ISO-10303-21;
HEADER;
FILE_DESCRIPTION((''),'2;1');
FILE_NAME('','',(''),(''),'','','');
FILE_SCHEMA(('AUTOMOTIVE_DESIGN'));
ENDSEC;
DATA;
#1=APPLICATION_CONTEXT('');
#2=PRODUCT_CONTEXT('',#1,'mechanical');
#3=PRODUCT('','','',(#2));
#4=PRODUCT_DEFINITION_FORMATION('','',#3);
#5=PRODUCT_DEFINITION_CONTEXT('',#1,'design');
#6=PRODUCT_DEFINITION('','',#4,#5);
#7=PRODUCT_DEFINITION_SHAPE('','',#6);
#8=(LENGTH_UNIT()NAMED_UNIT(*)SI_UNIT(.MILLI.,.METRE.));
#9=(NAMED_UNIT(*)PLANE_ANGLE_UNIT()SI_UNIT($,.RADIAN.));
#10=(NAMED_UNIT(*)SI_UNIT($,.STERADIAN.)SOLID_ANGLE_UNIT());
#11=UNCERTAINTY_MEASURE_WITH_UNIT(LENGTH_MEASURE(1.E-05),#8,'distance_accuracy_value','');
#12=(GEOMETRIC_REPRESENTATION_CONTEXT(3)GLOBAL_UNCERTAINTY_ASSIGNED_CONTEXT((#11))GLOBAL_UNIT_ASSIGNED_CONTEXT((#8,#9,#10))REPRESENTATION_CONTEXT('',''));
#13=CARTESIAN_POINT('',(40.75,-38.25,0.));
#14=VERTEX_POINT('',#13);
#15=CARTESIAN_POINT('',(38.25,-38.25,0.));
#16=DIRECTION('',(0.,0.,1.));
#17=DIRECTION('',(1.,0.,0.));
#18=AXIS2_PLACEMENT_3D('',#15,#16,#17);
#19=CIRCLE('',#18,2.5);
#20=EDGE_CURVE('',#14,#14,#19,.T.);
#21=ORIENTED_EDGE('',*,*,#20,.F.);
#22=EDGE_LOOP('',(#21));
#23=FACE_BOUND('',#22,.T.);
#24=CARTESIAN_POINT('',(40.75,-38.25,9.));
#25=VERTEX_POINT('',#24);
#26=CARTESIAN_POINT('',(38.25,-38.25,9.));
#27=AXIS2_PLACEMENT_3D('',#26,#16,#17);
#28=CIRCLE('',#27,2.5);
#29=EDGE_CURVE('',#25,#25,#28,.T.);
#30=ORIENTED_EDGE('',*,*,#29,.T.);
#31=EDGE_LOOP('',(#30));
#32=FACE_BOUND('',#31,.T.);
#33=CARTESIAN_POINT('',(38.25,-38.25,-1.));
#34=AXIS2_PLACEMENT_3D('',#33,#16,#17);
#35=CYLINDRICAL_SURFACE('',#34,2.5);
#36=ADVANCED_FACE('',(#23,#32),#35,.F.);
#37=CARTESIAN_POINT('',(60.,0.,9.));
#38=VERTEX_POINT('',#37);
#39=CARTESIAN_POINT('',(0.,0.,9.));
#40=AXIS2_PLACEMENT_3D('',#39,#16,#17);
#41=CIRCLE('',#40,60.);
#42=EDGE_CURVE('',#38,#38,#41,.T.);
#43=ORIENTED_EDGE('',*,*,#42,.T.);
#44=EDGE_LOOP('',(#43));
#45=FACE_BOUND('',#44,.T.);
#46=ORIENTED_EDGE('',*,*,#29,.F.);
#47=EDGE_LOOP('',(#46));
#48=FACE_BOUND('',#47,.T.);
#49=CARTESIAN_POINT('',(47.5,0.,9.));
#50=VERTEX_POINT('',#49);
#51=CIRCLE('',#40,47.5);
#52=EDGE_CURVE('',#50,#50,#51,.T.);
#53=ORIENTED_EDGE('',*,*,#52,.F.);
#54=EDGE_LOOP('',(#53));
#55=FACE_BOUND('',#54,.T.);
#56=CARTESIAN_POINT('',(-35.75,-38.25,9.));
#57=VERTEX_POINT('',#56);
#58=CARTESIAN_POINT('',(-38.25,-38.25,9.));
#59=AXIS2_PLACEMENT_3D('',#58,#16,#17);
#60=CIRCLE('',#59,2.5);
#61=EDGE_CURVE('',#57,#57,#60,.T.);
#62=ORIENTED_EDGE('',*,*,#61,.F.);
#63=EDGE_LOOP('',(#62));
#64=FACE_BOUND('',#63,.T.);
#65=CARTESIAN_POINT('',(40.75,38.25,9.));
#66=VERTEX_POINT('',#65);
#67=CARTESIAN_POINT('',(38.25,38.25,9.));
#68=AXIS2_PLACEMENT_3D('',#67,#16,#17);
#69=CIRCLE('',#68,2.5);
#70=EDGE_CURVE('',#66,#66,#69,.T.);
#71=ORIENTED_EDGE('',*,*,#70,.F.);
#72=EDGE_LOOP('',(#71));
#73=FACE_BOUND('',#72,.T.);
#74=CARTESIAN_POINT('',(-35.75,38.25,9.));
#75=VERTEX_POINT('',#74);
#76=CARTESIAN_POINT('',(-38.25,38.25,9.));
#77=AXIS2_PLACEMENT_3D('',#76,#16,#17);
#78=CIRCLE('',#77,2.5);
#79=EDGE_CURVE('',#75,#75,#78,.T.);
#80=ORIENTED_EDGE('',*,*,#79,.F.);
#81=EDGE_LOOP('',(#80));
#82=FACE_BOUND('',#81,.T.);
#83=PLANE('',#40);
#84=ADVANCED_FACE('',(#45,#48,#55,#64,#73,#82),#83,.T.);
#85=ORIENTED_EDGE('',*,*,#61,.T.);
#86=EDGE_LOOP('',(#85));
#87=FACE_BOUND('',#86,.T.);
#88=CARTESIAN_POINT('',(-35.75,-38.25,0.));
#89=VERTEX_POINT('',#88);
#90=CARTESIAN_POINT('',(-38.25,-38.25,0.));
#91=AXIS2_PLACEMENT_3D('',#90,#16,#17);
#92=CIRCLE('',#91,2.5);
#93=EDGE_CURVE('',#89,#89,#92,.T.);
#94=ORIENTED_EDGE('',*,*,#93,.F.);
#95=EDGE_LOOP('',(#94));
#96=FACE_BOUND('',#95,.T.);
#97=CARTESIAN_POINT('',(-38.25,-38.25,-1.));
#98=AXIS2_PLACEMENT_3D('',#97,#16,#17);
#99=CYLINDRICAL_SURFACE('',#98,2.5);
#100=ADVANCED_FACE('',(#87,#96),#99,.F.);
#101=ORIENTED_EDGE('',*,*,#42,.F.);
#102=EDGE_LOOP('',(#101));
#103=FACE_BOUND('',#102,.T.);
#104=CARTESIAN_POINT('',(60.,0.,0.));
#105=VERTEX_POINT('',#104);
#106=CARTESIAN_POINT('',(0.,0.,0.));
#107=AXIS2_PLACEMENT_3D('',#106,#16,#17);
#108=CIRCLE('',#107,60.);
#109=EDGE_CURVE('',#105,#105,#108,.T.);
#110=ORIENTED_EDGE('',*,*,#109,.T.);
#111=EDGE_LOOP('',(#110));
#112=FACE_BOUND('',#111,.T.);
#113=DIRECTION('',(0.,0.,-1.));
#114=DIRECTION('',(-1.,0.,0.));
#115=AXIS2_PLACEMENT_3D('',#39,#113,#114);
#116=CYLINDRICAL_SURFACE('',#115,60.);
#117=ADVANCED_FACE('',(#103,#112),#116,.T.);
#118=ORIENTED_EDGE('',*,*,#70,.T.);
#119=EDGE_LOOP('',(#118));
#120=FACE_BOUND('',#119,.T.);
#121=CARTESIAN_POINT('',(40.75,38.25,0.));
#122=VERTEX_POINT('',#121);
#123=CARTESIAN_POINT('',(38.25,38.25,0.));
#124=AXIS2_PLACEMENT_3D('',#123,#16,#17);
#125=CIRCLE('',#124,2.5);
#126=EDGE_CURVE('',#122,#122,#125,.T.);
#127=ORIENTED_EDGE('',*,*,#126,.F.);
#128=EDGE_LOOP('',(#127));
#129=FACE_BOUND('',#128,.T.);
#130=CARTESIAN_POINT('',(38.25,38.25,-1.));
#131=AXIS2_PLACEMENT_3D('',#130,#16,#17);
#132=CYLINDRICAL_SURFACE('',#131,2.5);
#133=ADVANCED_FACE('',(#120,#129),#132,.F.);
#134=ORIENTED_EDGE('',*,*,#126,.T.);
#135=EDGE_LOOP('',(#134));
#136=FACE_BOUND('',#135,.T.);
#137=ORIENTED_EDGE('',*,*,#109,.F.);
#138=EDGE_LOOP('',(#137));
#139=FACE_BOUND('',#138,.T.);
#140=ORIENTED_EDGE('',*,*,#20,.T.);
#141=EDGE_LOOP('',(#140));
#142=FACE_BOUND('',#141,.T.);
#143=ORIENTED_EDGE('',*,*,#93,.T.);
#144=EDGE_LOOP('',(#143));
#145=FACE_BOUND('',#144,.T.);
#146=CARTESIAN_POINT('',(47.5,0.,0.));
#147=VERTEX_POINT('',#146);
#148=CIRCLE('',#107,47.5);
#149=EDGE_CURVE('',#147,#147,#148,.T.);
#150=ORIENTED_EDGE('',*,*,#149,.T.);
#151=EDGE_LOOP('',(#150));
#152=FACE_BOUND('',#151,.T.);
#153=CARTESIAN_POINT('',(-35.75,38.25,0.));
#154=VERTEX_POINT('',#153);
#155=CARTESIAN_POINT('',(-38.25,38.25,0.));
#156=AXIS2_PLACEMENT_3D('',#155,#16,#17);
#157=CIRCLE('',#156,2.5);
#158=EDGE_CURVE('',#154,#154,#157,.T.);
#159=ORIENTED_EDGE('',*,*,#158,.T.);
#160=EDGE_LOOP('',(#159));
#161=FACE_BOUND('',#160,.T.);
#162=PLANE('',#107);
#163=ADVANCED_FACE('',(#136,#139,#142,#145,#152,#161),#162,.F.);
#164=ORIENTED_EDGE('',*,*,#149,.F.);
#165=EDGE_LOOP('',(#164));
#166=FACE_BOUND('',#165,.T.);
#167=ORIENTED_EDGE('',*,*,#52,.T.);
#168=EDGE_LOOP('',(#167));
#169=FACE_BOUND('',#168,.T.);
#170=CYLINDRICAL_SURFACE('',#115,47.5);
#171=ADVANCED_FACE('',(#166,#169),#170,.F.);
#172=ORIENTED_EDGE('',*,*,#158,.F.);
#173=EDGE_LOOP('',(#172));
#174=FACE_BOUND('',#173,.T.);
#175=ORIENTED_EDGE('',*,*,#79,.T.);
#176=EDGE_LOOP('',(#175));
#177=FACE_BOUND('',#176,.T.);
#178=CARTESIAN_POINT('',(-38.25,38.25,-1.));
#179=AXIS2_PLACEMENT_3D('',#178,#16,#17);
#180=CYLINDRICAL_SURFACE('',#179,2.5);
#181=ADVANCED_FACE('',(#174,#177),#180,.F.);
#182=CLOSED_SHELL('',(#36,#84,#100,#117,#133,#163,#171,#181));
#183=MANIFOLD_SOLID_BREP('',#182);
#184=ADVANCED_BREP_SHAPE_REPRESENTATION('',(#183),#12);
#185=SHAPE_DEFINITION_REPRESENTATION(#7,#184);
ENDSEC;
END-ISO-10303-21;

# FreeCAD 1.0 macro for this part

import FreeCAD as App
import Part
import Sketcher
from FreeCAD import Vector

doc = App.newDocument("Part")
body = doc.addObject("PartDesign::Body", "Body")

# Sketch on XY plane
sketch1 = body.newObject("Sketcher::SketchObject", "Sketch")
sketch1.AttachmentSupport = (doc.getObject("XY_Plane"), [""])
sketch1.MapMode = "FlatFace"
sketch1.addGeometry(Part.Circle(Vector(0, 0, 0), Vector(0, 0, 1), 60), False)
sketch1.addGeometry(Part.Circle(Vector(0, 0, 0), Vector(0, 0, 1), 48), False)
sketch1.addConstraint(Sketcher.Constraint("Coincident", 0, 3, -1, 1))
sketch1.addConstraint(Sketcher.Constraint("Coincident", 1, 3, -1, 1))
sketch1.addConstraint(Sketcher.Constraint("Diameter", 0, 120.0))
sketch1.addConstraint(Sketcher.Constraint("Diameter", 1, 95.0))
pad1 = body.newObject("PartDesign::Pad", "Pad")
pad1.Profile = sketch1
pad1.Length = 9

# Sketch on XY plane
sketch2 = body.newObject("Sketcher::SketchObject", "Sketch001")
sketch2.AttachmentSupport = (doc.getObject("XY_Plane"), [""])
sketch2.MapMode = "FlatFace"
sketch2.AttachmentOffset = App.Placement(Vector(0, 0, 9), App.Rotation())
sketch2.addGeometry(Part.Circle(Vector(38.2, 38.2, 0), Vector(0, 0, 1), 2.5), False)
sketch2.addGeometry(Part.Circle(Vector(38.2, -38.2, 0), Vector(0, 0, 1), 2.5), False)
sketch2.addGeometry(Part.Circle(Vector(-38.2, -38.2, 0), Vector(0, 0, 1), 2.5), False)
sketch2.addGeometry(Part.Circle(Vector(-38.2, 38.2, 0), Vector(0, 0, 1), 2.5), False)
sketch2.addConstraint(Sketcher.Constraint("Equal", 0, 1))
sketch2.addConstraint(Sketcher.Constraint("Equal", 1, 2))
sketch2.addConstraint(Sketcher.Constraint("Equal", 2, 3))
sketch2.addConstraint(Sketcher.Constraint("Symmetric", 0, 3, 2, 3, -1, 1))
sketch2.addConstraint(Sketcher.Constraint("Symmetric", 1, 3, 3, 3, -1, 1))
sketch2.addConstraint(Sketcher.Constraint("Symmetric", 1, 3, 2, 3, -2))
sketch2.addConstraint(Sketcher.Constraint("Diameter", 0, 5.0))
sketch2.addConstraint(Sketcher.Constraint("DistanceY", 1, 3, 0, 3, 76.5))
sketch2.addConstraint(Sketcher.Constraint("DistanceX", 2, 3, 1, 3, 76.5))
pocket1 = body.newObject("PartDesign::Pocket", "Pocket")
pocket1.Profile = sketch2
pocket1.Length = 10

doc.recompute()
